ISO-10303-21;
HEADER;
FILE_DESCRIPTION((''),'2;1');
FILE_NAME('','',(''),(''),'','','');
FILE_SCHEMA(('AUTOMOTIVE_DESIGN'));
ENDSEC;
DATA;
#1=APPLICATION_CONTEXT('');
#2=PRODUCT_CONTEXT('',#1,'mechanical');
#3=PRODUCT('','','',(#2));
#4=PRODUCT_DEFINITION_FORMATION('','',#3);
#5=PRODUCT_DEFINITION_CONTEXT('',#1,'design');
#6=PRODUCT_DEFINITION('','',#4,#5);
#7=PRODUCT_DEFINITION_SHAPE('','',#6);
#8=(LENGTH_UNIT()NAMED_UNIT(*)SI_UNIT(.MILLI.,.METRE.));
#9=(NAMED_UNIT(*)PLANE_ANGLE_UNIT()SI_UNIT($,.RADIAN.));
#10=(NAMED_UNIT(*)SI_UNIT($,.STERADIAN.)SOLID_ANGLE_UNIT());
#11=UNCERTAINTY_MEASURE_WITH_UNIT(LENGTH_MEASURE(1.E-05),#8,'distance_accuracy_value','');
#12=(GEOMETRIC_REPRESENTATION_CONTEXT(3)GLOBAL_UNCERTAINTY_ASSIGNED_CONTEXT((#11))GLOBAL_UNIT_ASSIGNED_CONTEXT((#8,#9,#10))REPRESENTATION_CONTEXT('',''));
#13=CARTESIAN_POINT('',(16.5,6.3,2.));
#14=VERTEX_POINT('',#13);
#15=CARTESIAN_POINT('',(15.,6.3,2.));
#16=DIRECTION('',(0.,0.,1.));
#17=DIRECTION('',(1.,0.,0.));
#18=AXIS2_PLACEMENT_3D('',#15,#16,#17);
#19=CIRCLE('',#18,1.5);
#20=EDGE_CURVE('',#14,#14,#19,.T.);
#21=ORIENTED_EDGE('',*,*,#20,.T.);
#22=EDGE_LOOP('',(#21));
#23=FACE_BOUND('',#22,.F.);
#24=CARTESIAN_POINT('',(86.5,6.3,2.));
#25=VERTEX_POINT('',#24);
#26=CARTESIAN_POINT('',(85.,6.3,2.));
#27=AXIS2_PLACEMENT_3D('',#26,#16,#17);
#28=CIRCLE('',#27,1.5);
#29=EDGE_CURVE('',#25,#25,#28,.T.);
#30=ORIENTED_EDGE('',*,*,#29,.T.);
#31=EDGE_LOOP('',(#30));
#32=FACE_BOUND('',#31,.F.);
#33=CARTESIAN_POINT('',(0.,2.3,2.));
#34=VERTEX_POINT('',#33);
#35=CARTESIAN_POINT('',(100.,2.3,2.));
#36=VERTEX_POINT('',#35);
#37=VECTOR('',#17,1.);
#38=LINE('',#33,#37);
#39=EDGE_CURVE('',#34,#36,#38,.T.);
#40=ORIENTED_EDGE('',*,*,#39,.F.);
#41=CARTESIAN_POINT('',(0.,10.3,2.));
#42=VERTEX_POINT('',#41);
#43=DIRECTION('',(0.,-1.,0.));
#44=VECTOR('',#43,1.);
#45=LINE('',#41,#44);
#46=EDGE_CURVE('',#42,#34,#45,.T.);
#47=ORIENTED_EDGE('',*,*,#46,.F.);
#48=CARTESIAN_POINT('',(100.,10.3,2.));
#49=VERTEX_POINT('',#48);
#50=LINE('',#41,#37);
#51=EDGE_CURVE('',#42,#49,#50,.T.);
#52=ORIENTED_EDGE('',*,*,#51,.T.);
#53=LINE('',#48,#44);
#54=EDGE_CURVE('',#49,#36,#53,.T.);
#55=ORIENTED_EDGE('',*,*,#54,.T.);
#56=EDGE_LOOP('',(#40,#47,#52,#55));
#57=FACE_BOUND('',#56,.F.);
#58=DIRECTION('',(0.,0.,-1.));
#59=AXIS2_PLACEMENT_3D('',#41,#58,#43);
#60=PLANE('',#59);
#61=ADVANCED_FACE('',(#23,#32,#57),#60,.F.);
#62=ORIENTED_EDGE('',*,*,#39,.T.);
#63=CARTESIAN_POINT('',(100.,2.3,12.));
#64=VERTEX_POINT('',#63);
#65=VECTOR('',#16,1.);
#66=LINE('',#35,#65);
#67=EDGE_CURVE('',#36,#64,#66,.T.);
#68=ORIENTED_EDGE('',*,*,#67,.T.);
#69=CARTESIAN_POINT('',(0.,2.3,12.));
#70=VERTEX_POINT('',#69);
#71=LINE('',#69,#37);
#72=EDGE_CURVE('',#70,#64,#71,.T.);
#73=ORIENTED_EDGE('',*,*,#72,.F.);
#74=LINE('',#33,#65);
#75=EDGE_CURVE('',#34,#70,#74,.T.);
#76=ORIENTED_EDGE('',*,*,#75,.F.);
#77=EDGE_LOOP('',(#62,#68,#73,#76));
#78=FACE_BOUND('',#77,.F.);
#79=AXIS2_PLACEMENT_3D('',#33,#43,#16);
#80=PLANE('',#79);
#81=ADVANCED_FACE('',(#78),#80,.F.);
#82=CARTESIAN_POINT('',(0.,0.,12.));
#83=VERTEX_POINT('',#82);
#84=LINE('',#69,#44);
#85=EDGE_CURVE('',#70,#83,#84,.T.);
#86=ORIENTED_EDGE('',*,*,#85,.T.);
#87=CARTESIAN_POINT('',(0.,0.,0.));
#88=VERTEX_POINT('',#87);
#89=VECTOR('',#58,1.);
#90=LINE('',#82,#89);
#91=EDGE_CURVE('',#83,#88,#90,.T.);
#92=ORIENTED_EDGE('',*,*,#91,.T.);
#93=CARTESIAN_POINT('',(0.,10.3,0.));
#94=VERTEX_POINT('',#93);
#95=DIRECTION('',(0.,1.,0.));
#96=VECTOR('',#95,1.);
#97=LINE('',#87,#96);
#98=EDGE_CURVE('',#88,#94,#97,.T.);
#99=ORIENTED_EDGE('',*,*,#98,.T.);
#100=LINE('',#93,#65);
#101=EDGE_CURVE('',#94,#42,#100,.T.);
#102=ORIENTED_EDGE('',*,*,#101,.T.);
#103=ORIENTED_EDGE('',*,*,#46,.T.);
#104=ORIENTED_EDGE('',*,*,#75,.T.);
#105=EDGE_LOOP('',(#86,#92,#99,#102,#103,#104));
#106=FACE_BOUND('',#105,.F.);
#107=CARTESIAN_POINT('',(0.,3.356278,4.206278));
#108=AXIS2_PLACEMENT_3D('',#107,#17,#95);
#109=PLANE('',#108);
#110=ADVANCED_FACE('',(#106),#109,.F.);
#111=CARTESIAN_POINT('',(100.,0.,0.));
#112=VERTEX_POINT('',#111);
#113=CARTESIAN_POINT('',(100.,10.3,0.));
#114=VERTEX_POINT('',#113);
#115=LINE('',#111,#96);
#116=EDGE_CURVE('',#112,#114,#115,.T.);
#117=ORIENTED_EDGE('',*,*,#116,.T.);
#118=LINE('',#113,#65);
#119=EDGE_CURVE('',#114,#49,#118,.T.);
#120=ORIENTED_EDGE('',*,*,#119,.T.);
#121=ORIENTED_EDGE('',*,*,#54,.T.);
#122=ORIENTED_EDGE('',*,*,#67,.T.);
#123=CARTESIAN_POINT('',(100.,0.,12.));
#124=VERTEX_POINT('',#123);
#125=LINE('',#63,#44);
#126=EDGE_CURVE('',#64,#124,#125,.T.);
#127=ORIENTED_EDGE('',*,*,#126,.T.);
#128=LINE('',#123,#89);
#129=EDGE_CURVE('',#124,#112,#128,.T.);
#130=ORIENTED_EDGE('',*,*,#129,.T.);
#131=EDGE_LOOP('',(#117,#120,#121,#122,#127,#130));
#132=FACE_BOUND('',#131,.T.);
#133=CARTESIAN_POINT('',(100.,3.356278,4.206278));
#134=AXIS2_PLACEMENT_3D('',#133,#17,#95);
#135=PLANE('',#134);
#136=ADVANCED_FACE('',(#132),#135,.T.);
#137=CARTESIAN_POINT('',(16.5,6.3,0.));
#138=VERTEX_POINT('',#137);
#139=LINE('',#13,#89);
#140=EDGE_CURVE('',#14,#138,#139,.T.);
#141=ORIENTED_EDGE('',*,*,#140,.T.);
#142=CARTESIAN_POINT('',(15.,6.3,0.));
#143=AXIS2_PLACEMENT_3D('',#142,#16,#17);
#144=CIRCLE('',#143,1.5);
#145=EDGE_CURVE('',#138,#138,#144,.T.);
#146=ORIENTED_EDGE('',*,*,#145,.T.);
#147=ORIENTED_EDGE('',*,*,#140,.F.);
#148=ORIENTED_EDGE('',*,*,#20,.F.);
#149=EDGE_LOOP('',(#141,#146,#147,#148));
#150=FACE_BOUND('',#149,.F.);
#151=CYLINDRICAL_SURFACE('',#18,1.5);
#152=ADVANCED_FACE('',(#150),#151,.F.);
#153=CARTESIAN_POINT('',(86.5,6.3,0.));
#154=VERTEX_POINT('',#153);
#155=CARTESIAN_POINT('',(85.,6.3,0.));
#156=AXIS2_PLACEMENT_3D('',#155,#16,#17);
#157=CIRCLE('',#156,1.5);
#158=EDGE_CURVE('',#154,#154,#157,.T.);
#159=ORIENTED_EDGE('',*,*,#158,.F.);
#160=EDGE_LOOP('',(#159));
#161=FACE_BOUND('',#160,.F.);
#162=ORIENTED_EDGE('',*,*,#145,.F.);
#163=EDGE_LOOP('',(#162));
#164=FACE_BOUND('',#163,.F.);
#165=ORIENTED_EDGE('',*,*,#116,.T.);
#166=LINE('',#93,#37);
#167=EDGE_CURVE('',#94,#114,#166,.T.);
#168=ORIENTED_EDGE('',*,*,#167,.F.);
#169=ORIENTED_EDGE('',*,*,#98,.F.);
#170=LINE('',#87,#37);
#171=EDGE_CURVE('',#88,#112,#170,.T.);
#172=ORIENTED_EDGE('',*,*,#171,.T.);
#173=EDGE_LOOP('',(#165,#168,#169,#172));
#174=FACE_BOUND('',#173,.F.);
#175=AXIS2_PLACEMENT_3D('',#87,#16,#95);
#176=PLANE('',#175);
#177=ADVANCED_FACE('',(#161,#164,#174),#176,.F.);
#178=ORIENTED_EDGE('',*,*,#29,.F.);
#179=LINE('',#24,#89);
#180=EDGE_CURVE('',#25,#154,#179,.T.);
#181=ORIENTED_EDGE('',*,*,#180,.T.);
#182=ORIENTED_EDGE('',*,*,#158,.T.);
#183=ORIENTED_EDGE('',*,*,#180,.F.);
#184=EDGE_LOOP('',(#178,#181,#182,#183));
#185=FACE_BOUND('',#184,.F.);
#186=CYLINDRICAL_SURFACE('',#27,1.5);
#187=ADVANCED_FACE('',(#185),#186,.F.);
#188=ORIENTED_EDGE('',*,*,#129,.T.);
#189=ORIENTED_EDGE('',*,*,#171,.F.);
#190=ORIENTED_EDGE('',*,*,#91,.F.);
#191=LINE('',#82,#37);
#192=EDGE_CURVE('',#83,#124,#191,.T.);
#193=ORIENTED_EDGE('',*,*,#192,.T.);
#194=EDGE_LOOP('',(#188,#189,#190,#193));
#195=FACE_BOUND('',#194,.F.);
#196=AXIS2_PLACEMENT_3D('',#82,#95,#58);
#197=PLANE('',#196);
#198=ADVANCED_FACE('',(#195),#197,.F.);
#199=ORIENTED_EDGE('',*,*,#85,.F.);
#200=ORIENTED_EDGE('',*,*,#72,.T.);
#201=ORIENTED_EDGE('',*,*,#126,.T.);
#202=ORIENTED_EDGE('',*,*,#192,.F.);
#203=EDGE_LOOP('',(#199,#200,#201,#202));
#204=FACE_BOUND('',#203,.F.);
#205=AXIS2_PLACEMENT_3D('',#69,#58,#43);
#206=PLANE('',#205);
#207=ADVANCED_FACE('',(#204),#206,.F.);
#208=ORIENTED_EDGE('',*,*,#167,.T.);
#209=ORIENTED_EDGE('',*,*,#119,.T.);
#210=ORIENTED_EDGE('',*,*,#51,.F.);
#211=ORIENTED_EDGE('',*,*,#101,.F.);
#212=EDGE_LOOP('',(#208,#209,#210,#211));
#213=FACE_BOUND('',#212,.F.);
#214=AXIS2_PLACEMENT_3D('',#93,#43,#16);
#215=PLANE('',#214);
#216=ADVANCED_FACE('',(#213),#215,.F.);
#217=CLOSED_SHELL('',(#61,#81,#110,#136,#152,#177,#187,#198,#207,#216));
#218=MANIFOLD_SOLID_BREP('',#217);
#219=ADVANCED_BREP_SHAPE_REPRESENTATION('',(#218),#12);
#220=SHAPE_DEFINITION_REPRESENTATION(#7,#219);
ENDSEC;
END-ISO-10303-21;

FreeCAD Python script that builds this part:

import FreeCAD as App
import Part
import Sketcher
from FreeCAD import Vector
Q = App.Units.Quantity

doc = App.newDocument("Part")
body = doc.addObject("PartDesign::Body", "Body")

# Sketch on YZ plane
sketch1 = body.newObject("Sketcher::SketchObject", "Sketch")
sketch1.AttachmentSupport = (doc.getObject("YZ_Plane"), [""])
sketch1.MapMode = "FlatFace"
sketch1.addGeometry([
    Part.LineSegment(Vector(0, 12, 0), Vector(0, 0, 0)),  # 0
    Part.LineSegment(Vector(0, 0, 0), Vector(10.3, 0, 0)),  # 1
    Part.LineSegment(Vector(10.3, 0, 0), Vector(10.3, 2, 0)),  # 2
    Part.LineSegment(Vector(10.3, 2, 0), Vector(2.3, 2, 0)),  # 3
    Part.LineSegment(Vector(2.3, 2, 0), Vector(2.3, 12, 0)),  # 4
    Part.LineSegment(Vector(2.3, 12, 0), Vector(0, 12, 0)),  # 5
], False)
sketch1.addConstraint([
    Sketcher.Constraint("Coincident", 0, 2, 1, 1),
    Sketcher.Constraint("Coincident", 1, 2, 2, 1),
    Sketcher.Constraint("Coincident", 2, 2, 3, 1),
    Sketcher.Constraint("Coincident", 3, 2, 4, 1),
    Sketcher.Constraint("Coincident", 4, 2, 5, 1),
    Sketcher.Constraint("Coincident", 5, 2, 0, 1),
    Sketcher.Constraint("Vertical", 0),
    Sketcher.Constraint("Horizontal", 1),
    Sketcher.Constraint("Vertical", 2),
    Sketcher.Constraint("Horizontal", 3),
    Sketcher.Constraint("Vertical", 4),
    Sketcher.Constraint("Horizontal", 5),
    Sketcher.Constraint("Coincident", 0, 2, -1, 1),
    Sketcher.Constraint("DistanceX", 3, 2, 3, 1, Q("8 mm")),
    Sketcher.Constraint("DistanceY", 0, 2, 0, 1, Q("12 mm")),
    Sketcher.Constraint("DistanceY", 2, 1, 2, 2, Q("2 mm")),
    Sketcher.Constraint("DistanceX", 1, 1, 1, 2, Q("10.3 mm")),
])
pad1 = body.newObject("PartDesign::Pad", "Pad")
pad1.Profile = sketch1
pad1.Length = 100

# Sketch on XY plane
sketch2 = body.newObject("Sketcher::SketchObject", "Sketch001")
sketch2.AttachmentSupport = (doc.getObject("XY_Plane"), [""])
sketch2.MapMode = "FlatFace"
sketch2.AttachmentOffset = App.Placement(Vector(0, 0, 2), App.Rotation())
sketch2.addGeometry([
    Part.Circle(Vector(85, 6.3, 0), Vector(0, 0, 1), 1.5),
    Part.Circle(Vector(15, 6.3, 0), Vector(0, 0, 1), 1.5),
], False)
sketch2.addConstraint([
    Sketcher.Constraint("Equal", 0, 1),
    Sketcher.Constraint("Horizontal", 0, 3, 1, 3),
    Sketcher.Constraint("Diameter", 0, Q("3 mm")),
    Sketcher.Constraint("DistanceX", -1, 1, 0, 3, Q("85 mm")),
    Sketcher.Constraint("DistanceX", -1, 1, 1, 3, Q("15 mm")),
    Sketcher.Constraint("DistanceY", -1, 1, 0, 3, Q("6.3 mm")),
])
pocket1 = body.newObject("PartDesign::Pocket", "Pocket")
pocket1.Profile = sketch2
pocket1.Length = 25

doc.recompute()
